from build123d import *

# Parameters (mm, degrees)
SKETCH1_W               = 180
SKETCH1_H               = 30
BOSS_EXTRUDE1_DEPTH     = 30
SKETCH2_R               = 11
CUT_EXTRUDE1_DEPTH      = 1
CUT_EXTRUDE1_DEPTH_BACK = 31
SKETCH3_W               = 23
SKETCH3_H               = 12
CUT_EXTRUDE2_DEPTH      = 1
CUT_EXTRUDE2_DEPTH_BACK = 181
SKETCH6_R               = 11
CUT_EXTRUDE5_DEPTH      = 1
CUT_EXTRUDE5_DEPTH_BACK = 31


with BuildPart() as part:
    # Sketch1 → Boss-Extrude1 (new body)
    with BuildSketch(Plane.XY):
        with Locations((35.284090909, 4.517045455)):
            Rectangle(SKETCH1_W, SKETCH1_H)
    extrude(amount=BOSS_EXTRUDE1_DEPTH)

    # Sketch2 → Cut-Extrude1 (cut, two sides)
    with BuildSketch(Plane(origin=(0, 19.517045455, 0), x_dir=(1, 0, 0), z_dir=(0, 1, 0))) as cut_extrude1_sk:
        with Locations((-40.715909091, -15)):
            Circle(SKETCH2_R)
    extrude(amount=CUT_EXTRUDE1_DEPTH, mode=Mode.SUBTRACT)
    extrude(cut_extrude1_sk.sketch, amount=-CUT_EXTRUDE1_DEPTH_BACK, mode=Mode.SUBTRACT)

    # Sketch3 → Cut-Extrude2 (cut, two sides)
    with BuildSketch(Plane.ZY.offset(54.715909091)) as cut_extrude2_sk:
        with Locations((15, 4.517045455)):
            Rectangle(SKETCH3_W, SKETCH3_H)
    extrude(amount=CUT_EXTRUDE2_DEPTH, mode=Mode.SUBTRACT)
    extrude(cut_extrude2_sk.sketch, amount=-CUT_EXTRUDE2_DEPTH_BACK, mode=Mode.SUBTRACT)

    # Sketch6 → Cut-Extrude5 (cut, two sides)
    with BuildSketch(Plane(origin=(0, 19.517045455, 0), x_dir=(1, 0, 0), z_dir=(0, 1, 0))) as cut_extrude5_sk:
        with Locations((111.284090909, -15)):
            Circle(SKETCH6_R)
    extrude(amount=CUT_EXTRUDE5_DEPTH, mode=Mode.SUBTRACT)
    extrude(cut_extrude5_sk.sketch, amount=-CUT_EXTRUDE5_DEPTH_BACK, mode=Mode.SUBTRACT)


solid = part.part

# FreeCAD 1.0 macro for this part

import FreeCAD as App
import Part
import Sketcher
from FreeCAD import Vector

doc = App.newDocument("Part")
body = doc.addObject("PartDesign::Body", "Body")

# Sketch on XY plane
sketch1 = body.newObject("Sketcher::SketchObject", "Sketch")
sketch1.AttachmentSupport = (doc.getObject("XY_Plane"), [""])
sketch1.MapMode = "FlatFace"
sketch1.addGeometry(Part.LineSegment(Vector(-55, 20, 0), Vector(-55, -10, 0)), False)
sketch1.addGeometry(Part.LineSegment(Vector(-55, -10, 0), Vector(125, -10, 0)), False)
sketch1.addGeometry(Part.LineSegment(Vector(125, -10, 0), Vector(125, 20, 0)), False)
sketch1.addGeometry(Part.LineSegment(Vector(125, 20, 0), Vector(-55, 20, 0)), False)
sketch1.addConstraint(Sketcher.Constraint("Coincident", 0, 2, 1, 1))
sketch1.addConstraint(Sketcher.Constraint("Coincident", 1, 2, 2, 1))
sketch1.addConstraint(Sketcher.Constraint("Coincident", 2, 2, 3, 1))
sketch1.addConstraint(Sketcher.Constraint("Coincident", 3, 2, 0, 1))
sketch1.addConstraint(Sketcher.Constraint("Vertical", 0))
sketch1.addConstraint(Sketcher.Constraint("Horizontal", 1))
sketch1.addConstraint(Sketcher.Constraint("Vertical", 2))
sketch1.addConstraint(Sketcher.Constraint("Horizontal", 3))
sketch1.addConstraint(Sketcher.Constraint("DistanceX", 1, 1, 1, 2, 180.0))
sketch1.addConstraint(Sketcher.Constraint("DistanceY", 0, 2, 0, 1, 30.0))
sketch1.addConstraint(Sketcher.Constraint("DistanceX", 0, 2, -1, 1, 54.715909))
sketch1.addConstraint(Sketcher.Constraint("DistanceY", 0, 2, -1, 1, 10.482955))
pad1 = body.newObject("PartDesign::Pad", "Pad")
pad1.Profile = sketch1
pad1.Length = 30

# Sketch on XZ plane
sketch2 = body.newObject("Sketcher::SketchObject", "Sketch001")
sketch2.AttachmentSupport = (doc.getObject("XZ_Plane"), [""])
sketch2.MapMode = "FlatFace"
sketch2.AttachmentOffset = App.Placement(Vector(0, 0, -19.517045), App.Rotation())
sketch2.addGeometry(Part.Circle(Vector(-41, 15, 0), Vector(0, 0, 1), 11), False)
sketch2.addConstraint(Sketcher.Constraint("Diameter", 0, 22.0))
sketch2.addConstraint(Sketcher.Constraint("DistanceY", -1, 1, 0, 3, 15.0))
sketch2.addConstraint(Sketcher.Constraint("DistanceX", 0, 3, -1, 1, 40.715909))
pocket1 = body.newObject("PartDesign::Pocket", "Pocket")
pocket1.Profile = sketch2
pocket1.Type = "ThroughAll"
pocket1.Midplane = True

# Sketch on YZ plane
sketch3 = body.newObject("Sketcher::SketchObject", "Sketch002")
sketch3.AttachmentSupport = (doc.getObject("YZ_Plane"), [""])
sketch3.MapMode = "FlatFace"
sketch3.AttachmentOffset = App.Placement(Vector(0, 0, -54.715909), App.Rotation())
sketch3.addGeometry(Part.LineSegment(Vector(11, 4, 0), Vector(-1, 4, 0)), False)
sketch3.addGeometry(Part.LineSegment(Vector(-1, 4, 0), Vector(-1, 26, 0)), False)
sketch3.addGeometry(Part.LineSegment(Vector(-1, 26, 0), Vector(11, 26, 0)), False)
sketch3.addGeometry(Part.LineSegment(Vector(11, 26, 0), Vector(11, 4, 0)), False)
sketch3.addConstraint(Sketcher.Constraint("Coincident", 0, 2, 1, 1))
sketch3.addConstraint(Sketcher.Constraint("Coincident", 1, 2, 2, 1))
sketch3.addConstraint(Sketcher.Constraint("Coincident", 2, 2, 3, 1))
sketch3.addConstraint(Sketcher.Constraint("Coincident", 3, 2, 0, 1))
sketch3.addConstraint(Sketcher.Constraint("Horizontal", 0))
sketch3.addConstraint(Sketcher.Constraint("Vertical", 1))
sketch3.addConstraint(Sketcher.Constraint("Horizontal", 2))
sketch3.addConstraint(Sketcher.Constraint("Vertical", 3))
sketch3.addConstraint(Sketcher.Constraint("DistanceX", 0, 2, 0, 1, 12.0))
sketch3.addConstraint(Sketcher.Constraint("DistanceY", 1, 1, 1, 2, 23.0))
sketch3.addConstraint(Sketcher.Constraint("DistanceY", -1, 1, 0, 2, 3.5))
sketch3.addConstraint(Sketcher.Constraint("DistanceX", 0, 2, -1, 1, 1.482955))
pocket2 = body.newObject("PartDesign::Pocket", "Pocket001")
pocket2.Profile = sketch3
pocket2.Type = "ThroughAll"
pocket2.Midplane = True

# Sketch on XZ plane
sketch4 = body.newObject("Sketcher::SketchObject", "Sketch003")
sketch4.AttachmentSupport = (doc.getObject("XZ_Plane"), [""])
sketch4.MapMode = "FlatFace"
sketch4.AttachmentOffset = App.Placement(Vector(0, 0, -19.517045), App.Rotation())
sketch4.addGeometry(Part.Circle(Vector(111, 15, 0), Vector(0, 0, 1), 11), False)
sketch4.addConstraint(Sketcher.Constraint("Diameter", 0, 22.0))
sketch4.addConstraint(Sketcher.Constraint("DistanceY", -1, 1, 0, 3, 15.0))
sketch4.addConstraint(Sketcher.Constraint("DistanceX", -1, 1, 0, 3, 111.284091))
pocket3 = body.newObject("PartDesign::Pocket", "Pocket002")
pocket3.Profile = sketch4
pocket3.Type = "ThroughAll"
pocket3.Midplane = True

doc.recompute()
